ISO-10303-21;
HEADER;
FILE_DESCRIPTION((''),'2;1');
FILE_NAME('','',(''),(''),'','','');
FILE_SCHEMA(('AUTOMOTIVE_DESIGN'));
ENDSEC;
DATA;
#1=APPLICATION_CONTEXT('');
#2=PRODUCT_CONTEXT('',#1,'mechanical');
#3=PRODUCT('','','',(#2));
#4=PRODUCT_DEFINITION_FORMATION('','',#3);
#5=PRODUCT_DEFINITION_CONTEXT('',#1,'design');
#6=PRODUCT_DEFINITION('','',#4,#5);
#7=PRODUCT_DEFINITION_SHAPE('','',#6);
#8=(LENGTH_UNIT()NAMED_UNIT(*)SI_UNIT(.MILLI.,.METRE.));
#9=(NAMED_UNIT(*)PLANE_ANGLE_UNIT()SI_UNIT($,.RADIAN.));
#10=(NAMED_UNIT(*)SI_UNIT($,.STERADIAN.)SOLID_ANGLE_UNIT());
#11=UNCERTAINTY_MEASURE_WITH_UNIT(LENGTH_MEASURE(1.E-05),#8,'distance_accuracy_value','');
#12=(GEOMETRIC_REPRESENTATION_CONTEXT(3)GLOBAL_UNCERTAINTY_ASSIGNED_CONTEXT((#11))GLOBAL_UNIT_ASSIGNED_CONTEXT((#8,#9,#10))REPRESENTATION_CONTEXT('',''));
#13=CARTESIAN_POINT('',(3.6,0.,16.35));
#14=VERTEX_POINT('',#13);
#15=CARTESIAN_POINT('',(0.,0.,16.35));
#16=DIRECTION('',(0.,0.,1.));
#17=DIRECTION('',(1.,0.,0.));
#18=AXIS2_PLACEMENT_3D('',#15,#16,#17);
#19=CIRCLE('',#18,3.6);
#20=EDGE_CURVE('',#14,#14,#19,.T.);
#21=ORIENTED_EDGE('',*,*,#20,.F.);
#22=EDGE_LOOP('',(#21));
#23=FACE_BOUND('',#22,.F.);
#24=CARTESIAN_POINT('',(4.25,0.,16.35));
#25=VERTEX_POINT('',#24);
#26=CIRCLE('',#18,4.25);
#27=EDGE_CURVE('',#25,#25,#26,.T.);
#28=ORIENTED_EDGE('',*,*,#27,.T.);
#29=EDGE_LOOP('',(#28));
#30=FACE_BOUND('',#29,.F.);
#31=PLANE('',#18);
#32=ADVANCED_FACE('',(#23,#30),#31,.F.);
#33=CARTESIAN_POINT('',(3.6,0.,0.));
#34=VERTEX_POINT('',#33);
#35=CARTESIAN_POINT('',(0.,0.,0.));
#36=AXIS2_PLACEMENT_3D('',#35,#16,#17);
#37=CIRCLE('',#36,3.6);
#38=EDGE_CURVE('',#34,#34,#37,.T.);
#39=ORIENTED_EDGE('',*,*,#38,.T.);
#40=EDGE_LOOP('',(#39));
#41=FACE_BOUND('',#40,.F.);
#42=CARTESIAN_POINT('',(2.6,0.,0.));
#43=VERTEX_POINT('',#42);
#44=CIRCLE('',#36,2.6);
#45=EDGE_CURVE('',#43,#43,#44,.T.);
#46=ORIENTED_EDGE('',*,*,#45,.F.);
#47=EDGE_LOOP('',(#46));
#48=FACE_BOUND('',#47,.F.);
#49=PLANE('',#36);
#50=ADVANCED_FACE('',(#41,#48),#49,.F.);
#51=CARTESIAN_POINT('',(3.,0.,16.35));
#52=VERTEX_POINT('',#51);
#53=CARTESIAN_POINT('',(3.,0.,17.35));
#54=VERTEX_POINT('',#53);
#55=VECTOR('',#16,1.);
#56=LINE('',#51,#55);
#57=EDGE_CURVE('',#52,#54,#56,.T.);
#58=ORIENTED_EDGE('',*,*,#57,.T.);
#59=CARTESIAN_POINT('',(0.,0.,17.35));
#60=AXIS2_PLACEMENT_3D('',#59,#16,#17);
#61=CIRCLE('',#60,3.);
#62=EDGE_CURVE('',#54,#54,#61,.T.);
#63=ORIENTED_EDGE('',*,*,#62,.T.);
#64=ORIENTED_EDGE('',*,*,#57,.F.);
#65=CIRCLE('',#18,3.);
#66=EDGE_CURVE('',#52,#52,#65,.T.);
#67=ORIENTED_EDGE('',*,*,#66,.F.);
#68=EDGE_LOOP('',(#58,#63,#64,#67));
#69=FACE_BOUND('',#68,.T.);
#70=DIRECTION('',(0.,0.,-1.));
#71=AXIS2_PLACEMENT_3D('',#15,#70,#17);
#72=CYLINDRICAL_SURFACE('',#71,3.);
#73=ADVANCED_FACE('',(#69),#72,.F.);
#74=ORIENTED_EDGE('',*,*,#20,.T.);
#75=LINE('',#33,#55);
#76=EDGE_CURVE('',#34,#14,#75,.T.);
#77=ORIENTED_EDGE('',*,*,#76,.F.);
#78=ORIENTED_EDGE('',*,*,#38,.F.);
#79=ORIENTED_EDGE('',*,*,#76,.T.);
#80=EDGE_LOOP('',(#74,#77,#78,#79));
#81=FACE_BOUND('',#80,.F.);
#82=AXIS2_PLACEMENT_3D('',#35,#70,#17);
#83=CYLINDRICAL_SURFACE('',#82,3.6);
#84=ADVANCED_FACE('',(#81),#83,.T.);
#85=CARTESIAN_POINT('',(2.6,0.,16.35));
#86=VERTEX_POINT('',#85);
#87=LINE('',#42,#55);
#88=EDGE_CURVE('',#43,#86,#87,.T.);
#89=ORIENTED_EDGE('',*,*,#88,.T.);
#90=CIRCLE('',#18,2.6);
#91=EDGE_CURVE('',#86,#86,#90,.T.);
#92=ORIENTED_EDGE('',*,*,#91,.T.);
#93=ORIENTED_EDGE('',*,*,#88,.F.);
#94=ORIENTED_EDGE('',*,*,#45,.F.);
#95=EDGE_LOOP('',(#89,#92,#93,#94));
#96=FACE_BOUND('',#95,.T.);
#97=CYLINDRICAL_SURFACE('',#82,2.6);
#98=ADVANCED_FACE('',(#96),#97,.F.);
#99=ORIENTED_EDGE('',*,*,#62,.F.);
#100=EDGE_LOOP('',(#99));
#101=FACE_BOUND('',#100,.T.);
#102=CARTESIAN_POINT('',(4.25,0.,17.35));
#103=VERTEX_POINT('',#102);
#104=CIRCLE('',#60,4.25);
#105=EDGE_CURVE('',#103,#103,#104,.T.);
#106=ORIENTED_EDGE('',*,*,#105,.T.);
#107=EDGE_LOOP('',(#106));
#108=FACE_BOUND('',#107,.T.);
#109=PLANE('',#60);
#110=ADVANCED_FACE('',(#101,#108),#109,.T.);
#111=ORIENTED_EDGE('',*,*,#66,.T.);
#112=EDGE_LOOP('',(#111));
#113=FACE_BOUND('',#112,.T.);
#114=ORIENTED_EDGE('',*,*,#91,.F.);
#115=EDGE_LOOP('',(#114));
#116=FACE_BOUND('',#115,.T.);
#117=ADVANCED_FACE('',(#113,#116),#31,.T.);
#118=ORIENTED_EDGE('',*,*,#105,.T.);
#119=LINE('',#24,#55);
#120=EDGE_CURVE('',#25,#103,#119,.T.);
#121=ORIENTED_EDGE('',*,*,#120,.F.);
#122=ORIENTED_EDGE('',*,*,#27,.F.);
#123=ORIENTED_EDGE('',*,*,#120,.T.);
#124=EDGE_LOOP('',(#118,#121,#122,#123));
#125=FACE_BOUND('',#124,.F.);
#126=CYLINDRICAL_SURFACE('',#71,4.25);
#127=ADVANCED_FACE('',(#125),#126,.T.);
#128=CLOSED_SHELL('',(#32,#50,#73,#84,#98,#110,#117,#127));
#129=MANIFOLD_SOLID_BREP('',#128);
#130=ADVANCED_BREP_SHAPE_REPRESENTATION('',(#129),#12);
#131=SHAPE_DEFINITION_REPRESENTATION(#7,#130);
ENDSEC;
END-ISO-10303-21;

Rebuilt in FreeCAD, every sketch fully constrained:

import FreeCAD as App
import Part
import Sketcher
from FreeCAD import Vector
Q = App.Units.Quantity

doc = App.newDocument("Part")
params = doc.addObject("Spreadsheet::Sheet", "Params")
for row, (alias, value) in enumerate([
    ("sketch1_diameter", "7.2 mm"),
    ("sketch1_diameter2", "5.2 mm"),
    ("pad1_length", "16.35 mm"),
    ("sketch2_diameter", "6 mm"),
    ("sketch2_diameter2", "8.5 mm"),
    ("pad2_length", "1 mm"),
], start=1):
    params.set(f"A{row}", alias)
    params.set(f"B{row}", "=" + value)
    params.setAlias(f"B{row}", alias)

body = doc.addObject("PartDesign::Body", "Body")

sketch1 = body.newObject("Sketcher::SketchObject", "Sketch")
sketch1.AttachmentSupport = (doc.getObject("XY_Plane"), [""])
sketch1.MapMode = "FlatFace"
sketch1.addGeometry([
    Part.Circle(Vector(0, 0, 0), Vector(0, 0, 1), 3.6),
    Part.Circle(Vector(0, 0, 0), Vector(0, 0, 1), 2.6),
], False)
sketch1.addConstraint([
    Sketcher.Constraint("Coincident", 0, 3, -1, 1),
    Sketcher.Constraint("Coincident", 1, 3, -1, 1),
    Sketcher.Constraint("Diameter", 0, Q("7.2 mm")),
    Sketcher.Constraint("Diameter", 1, Q("5.2 mm")),
])
sketch1.setExpression("Constraints[2]", "Params.sketch1_diameter")
sketch1.setExpression("Constraints[3]", "Params.sketch1_diameter2")
pad1 = body.newObject("PartDesign::Pad", "Pad")
pad1.Profile = sketch1
pad1.setExpression("Length", "Params.pad1_length")

sketch2 = body.newObject("Sketcher::SketchObject", "Sketch001")
sketch2.AttachmentSupport = (doc.getObject("XY_Plane"), [""])
sketch2.MapMode = "FlatFace"
sketch2.AttachmentOffset = App.Placement(Vector(0, 0, 16.35), App.Rotation())
sketch2.addGeometry([
    Part.Circle(Vector(0, 0, 0), Vector(0, 0, 1), 4.2),
    Part.Circle(Vector(0, 0, 0), Vector(0, 0, 1), 3),
], False)
sketch2.addConstraint([
    Sketcher.Constraint("Coincident", 0, 3, -1, 1),
    Sketcher.Constraint("Coincident", 1, 3, -1, 1),
    Sketcher.Constraint("Diameter", 1, Q("6 mm")),
    Sketcher.Constraint("Diameter", 0, Q("8.5 mm")),
])
sketch2.setExpression("Constraints[2]", "Params.sketch2_diameter")
sketch2.setExpression("Constraints[3]", "Params.sketch2_diameter2")
pad2 = body.newObject("PartDesign::Pad", "Pad001")
pad2.Profile = sketch2
pad2.setExpression("Length", "Params.pad2_length")

doc.recompute()
